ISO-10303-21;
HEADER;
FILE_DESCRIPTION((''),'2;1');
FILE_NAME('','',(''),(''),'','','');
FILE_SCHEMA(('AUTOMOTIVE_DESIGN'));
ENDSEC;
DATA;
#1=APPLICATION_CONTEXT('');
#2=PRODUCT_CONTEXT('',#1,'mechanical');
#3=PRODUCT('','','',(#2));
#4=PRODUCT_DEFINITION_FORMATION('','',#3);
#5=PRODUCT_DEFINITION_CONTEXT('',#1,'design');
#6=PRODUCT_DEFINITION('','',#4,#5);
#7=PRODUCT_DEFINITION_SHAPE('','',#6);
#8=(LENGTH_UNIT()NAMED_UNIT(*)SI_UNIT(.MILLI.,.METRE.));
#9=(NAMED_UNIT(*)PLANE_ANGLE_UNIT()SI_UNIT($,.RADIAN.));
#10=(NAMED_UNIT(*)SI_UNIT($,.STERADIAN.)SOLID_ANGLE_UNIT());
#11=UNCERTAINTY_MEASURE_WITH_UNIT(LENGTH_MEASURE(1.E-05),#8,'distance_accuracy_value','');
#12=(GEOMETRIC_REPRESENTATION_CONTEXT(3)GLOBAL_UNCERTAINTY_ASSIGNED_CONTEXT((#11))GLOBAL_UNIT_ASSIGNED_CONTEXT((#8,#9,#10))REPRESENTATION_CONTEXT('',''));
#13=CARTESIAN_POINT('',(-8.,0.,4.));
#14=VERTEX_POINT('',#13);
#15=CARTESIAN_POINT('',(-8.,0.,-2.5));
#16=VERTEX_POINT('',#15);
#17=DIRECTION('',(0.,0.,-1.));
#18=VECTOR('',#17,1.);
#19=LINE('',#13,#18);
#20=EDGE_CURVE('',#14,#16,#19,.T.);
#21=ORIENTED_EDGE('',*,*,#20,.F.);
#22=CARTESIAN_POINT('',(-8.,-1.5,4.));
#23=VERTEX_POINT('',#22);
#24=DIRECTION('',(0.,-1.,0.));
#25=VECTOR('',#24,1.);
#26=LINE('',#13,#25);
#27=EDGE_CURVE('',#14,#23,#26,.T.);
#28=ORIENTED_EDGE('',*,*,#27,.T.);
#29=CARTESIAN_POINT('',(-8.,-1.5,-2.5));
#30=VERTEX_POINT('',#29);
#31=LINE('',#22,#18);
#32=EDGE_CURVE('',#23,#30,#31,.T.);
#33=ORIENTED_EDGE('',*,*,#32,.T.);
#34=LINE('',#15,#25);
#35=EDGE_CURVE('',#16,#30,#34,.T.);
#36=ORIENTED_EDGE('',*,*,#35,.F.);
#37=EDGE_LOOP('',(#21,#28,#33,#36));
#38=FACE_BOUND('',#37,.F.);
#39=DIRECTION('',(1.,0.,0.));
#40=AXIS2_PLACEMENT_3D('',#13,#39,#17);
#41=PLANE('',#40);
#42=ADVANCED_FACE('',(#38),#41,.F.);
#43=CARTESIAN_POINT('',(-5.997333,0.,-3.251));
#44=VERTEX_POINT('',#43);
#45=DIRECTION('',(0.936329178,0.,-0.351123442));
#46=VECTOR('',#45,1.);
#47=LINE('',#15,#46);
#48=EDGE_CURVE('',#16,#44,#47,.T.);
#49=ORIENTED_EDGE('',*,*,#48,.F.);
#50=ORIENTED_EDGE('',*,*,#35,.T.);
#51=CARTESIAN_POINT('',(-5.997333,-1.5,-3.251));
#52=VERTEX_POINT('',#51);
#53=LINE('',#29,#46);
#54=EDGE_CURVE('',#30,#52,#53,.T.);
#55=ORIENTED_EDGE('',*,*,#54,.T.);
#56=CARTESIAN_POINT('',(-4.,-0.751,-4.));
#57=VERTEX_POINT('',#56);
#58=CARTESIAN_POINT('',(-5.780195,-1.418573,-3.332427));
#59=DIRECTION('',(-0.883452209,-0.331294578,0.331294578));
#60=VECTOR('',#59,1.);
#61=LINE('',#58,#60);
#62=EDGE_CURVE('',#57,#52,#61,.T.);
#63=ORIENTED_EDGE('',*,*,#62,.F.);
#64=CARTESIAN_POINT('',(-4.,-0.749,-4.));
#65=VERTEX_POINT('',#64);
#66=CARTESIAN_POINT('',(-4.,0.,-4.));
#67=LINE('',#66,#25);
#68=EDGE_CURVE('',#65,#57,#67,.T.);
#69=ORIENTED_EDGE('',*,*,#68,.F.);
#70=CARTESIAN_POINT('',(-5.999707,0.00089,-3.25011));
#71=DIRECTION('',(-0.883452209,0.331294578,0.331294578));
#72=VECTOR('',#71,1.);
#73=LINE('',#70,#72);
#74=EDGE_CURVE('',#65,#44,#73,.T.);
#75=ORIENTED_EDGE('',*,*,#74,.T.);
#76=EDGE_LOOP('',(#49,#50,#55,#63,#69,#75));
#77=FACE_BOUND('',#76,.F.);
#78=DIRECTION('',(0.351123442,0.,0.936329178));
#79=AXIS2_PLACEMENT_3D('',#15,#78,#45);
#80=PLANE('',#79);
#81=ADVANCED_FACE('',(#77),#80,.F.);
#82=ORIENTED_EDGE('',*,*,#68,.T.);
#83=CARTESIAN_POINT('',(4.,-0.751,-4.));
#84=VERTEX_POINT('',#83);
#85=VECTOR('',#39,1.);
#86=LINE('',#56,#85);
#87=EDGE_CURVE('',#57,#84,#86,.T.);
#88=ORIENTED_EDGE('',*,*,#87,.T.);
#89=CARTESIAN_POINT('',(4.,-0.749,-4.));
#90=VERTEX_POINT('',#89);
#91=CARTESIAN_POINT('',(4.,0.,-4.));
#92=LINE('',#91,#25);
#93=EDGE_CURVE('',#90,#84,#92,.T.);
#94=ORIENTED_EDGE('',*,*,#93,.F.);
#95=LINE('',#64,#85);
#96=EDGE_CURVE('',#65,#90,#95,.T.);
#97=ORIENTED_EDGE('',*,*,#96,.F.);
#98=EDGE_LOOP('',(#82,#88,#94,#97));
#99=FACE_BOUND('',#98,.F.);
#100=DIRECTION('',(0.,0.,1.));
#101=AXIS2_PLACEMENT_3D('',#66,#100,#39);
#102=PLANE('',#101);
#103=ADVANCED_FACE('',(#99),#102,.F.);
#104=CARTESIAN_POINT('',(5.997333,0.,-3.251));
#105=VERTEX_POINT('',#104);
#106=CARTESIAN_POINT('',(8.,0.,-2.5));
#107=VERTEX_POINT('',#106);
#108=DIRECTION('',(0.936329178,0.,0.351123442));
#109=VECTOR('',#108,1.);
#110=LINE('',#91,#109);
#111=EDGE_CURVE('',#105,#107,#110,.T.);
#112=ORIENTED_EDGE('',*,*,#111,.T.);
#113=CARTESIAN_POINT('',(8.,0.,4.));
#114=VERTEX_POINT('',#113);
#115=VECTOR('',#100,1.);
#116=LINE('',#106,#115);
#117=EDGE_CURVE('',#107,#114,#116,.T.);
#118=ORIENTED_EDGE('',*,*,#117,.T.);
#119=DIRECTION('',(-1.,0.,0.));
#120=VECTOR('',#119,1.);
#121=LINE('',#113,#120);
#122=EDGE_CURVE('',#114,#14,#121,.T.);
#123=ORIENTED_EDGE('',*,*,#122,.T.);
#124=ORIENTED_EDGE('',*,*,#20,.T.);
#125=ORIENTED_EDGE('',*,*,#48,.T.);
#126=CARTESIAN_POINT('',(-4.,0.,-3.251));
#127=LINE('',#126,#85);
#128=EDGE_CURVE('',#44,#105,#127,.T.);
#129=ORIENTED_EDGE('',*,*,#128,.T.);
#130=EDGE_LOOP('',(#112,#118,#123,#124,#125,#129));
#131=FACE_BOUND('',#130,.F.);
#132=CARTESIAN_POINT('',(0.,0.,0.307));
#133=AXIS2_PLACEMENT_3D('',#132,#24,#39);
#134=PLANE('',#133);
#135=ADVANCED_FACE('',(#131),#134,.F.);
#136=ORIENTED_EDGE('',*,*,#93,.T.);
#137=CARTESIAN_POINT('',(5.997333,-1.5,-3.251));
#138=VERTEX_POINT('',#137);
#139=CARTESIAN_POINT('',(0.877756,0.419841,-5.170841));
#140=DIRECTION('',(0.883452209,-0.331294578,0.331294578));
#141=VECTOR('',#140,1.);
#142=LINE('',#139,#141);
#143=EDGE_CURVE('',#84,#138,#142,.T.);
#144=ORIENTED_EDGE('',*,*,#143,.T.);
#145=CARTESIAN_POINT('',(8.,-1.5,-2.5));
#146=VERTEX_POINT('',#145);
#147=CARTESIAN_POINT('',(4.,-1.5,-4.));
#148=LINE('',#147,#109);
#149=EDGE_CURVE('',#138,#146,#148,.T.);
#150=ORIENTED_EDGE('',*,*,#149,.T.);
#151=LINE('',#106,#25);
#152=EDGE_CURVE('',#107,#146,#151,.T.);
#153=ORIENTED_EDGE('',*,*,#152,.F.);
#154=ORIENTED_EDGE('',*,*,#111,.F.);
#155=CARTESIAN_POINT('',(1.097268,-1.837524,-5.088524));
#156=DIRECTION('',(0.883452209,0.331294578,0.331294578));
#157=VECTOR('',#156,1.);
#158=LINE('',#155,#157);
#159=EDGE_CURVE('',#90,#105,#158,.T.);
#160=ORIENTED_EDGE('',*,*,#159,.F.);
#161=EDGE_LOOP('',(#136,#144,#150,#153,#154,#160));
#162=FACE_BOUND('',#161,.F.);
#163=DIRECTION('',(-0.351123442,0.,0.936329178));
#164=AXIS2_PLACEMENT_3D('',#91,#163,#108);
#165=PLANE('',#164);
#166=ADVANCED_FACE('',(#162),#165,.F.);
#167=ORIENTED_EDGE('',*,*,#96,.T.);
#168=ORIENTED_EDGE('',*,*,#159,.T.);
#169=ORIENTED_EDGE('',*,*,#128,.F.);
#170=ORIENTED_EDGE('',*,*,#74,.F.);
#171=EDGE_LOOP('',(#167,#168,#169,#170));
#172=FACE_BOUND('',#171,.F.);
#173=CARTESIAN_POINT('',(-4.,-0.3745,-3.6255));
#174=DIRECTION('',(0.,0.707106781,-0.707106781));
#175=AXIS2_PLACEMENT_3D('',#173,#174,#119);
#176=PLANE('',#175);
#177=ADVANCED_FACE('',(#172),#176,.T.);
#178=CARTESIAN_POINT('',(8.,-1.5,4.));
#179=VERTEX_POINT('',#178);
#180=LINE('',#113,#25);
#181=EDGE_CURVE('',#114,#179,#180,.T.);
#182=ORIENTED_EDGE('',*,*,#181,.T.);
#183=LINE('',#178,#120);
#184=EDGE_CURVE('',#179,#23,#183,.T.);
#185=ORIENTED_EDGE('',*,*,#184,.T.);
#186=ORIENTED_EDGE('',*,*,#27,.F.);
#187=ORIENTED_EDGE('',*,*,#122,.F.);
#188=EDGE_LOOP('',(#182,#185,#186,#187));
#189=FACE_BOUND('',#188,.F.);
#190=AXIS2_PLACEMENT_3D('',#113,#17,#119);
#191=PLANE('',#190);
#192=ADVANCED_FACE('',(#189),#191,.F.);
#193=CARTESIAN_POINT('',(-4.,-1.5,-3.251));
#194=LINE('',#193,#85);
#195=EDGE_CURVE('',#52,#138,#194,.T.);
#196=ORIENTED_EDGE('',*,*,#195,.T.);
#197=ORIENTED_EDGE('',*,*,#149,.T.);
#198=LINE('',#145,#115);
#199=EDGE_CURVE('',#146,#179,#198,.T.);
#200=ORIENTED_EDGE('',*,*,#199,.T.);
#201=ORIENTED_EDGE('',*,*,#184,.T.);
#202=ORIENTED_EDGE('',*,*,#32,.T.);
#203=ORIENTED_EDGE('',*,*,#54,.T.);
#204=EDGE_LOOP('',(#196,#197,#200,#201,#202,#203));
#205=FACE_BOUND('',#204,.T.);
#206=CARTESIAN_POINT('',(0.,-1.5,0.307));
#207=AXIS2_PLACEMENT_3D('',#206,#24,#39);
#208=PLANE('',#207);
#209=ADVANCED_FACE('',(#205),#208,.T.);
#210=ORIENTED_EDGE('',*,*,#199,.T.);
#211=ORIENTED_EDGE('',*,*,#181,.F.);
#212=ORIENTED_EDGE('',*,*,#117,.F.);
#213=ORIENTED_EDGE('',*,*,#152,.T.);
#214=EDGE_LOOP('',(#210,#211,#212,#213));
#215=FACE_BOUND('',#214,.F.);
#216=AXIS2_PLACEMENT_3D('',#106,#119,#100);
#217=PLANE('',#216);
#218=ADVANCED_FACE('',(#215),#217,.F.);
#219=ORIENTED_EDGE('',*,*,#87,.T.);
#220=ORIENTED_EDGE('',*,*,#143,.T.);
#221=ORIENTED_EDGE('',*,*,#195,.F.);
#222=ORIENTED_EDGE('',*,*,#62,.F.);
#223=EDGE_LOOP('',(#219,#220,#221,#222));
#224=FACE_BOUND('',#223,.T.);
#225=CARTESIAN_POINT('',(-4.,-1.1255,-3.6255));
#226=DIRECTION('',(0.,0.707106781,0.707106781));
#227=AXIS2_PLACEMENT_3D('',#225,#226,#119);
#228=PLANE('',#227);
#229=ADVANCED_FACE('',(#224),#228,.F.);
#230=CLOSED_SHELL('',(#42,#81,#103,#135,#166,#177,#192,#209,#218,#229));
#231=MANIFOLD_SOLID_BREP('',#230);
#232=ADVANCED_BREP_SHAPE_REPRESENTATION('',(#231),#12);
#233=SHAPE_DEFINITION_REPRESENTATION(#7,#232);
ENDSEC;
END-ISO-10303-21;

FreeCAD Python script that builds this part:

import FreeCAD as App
import Part
import Sketcher


def edges_at(feature, points):
    """Names of the edges that pass closest to the given points."""
    edges = feature.Shape.Edges
    near = lambda p: min(range(len(edges)), key=lambda i: edges[i].distToShape(Part.Vertex(*p))[0])
    return sorted({f"Edge{near(p) + 1}" for p in points})


def add_polygon(sketch, points):
    """Adds a closed chain of lines whose ends are joined by coincident constraints."""
    first, n = sketch.GeometryCount, len(points)
    for a, b in zip(points, points[1:] + points[:1]):
        sketch.addGeometry(Part.LineSegment(App.Vector(*a, 0), App.Vector(*b, 0)), False)
    for i in range(n):
        sketch.addConstraint(Sketcher.Constraint("Coincident", first + i, 2, first + (i + 1) % n, 1))

doc = App.newDocument("Part")
body = doc.addObject("PartDesign::Body", "Body")

sketch1 = doc.addObject("Sketcher::SketchObject", "Sketch")
body.addObject(sketch1)
sketch1.AttachmentSupport = (doc.XZ_Plane, [""])
sketch1.MapMode = "FlatFace"
add_polygon(sketch1, [(-8, 4), (-8, -2.5), (-4, -4), (4, -4), (8, -2.5), (8, 4)])
sketch1.addConstraint(Sketcher.Constraint("Vertical", 0))
sketch1.addConstraint(Sketcher.Constraint("Horizontal", 2))
sketch1.addConstraint(Sketcher.Constraint("Vertical", 4))
sketch1.addConstraint(Sketcher.Constraint("Horizontal", 5))
sketch1.addConstraint(Sketcher.Constraint("Symmetric", 0, 2, 3, 2, -2))
sketch1.addConstraint(Sketcher.Constraint("Equal", 1, 3))
sketch1.addConstraint(Sketcher.Constraint("DistanceX", 2, 1, 2, 2, 8.0))
sketch1.addConstraint(Sketcher.Constraint("DistanceX", 5, 2, 5, 1, 16.0))
sketch1.addConstraint(Sketcher.Constraint("DistanceY", 0, 2, 0, 1, 6.5))
sketch1.addConstraint(Sketcher.Constraint("DistanceY", 1, 2, -1, 1, 4.0))
sketch1.addConstraint(Sketcher.Constraint("DistanceY", -1, 1, 4, 2, 4.0))
pad1 = doc.addObject("PartDesign::Pad", "Pad")
body.addObject(pad1)
pad1.Profile = sketch1
pad1.Length = 1.5
doc.recompute()

chamfer = doc.addObject("PartDesign::Chamfer", "Chamfer")
body.addObject(chamfer)
chamfer.Base = (pad1, edges_at(pad1, [(0, -1.5, -4), (0, 0, -4)]))
chamfer.Size = 0.749

doc.recompute()
